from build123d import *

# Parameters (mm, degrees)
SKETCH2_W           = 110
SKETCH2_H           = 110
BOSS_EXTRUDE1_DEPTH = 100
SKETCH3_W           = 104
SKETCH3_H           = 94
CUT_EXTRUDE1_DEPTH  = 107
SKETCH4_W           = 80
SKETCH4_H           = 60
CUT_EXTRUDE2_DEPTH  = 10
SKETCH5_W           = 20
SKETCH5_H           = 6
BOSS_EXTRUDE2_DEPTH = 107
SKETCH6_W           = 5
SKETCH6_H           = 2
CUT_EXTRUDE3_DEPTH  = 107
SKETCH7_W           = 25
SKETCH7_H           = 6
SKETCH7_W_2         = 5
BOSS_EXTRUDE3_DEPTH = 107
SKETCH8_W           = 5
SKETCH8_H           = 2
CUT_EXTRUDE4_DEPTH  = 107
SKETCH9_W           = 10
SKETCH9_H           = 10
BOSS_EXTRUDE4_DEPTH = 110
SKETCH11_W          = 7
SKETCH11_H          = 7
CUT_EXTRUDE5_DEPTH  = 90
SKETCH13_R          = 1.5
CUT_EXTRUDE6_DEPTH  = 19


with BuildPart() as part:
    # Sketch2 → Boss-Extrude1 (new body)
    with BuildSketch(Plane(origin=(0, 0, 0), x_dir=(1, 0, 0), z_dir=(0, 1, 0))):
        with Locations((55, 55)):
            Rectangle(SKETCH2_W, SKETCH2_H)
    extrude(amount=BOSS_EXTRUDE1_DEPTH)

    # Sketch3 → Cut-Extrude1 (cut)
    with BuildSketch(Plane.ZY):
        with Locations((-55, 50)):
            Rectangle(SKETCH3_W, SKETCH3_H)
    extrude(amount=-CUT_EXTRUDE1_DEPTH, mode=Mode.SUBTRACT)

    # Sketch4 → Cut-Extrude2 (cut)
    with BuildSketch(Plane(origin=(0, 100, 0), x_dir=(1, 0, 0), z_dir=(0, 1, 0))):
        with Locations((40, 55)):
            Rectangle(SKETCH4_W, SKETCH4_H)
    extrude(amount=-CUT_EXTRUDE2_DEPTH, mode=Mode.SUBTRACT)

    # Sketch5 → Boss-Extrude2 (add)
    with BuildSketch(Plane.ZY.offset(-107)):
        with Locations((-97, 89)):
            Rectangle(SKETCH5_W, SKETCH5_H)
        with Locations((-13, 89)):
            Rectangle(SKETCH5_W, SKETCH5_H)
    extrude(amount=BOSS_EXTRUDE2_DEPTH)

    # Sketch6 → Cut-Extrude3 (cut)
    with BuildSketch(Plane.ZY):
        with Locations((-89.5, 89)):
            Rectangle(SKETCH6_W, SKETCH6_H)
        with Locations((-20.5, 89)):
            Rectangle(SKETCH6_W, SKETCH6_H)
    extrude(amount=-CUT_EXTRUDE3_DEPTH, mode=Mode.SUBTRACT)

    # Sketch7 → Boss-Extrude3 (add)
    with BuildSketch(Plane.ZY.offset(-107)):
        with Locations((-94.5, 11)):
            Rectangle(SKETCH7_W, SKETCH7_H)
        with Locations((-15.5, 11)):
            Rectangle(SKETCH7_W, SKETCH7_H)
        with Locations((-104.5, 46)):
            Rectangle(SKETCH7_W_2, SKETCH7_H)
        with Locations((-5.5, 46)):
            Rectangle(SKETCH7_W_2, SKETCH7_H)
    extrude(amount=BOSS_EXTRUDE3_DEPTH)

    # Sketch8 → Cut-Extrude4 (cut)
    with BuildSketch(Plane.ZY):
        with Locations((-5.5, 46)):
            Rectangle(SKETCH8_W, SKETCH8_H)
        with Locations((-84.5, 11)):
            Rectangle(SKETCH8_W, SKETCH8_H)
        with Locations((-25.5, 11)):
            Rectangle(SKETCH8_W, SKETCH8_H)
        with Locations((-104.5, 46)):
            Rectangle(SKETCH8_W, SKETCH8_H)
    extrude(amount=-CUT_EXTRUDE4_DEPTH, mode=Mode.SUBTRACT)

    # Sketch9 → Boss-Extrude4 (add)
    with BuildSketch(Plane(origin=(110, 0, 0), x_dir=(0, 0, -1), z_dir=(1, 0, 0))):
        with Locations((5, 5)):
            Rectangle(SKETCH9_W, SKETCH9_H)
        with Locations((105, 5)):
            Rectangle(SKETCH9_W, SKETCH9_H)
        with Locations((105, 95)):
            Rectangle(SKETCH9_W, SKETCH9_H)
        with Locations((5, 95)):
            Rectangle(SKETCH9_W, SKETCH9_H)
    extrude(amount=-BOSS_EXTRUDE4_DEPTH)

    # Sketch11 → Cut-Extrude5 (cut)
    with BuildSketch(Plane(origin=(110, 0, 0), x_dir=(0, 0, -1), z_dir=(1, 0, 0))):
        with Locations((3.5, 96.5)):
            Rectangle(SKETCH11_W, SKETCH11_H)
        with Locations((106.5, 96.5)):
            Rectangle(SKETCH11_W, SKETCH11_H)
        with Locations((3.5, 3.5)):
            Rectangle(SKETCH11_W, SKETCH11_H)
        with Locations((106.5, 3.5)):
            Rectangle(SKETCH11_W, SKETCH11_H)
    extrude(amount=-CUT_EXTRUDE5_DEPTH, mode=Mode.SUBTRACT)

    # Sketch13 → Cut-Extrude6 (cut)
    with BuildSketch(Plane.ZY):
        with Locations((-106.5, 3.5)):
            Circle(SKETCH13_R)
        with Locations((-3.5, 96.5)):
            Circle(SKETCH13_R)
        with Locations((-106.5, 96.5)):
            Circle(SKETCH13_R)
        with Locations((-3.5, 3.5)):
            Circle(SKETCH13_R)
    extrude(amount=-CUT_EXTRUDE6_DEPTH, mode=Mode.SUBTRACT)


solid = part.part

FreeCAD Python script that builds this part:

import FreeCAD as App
import Part
import Sketcher
Q = App.Units.Quantity


def add_polygon(sketch, points):
    """Adds a closed chain of lines whose ends are joined by coincident constraints."""
    first, n = sketch.GeometryCount, len(points)
    for a, b in zip(points, points[1:] + points[:1]):
        sketch.addGeometry(Part.LineSegment(App.Vector(*a, 0), App.Vector(*b, 0)), False)
    for i in range(n):
        sketch.addConstraint(Sketcher.Constraint("Coincident", first + i, 2, first + (i + 1) % n, 1))

doc = App.newDocument("Part")
body = doc.addObject("PartDesign::Body", "Body")

sketch1 = doc.addObject("Sketcher::SketchObject", "Sketch")
body.addObject(sketch1)
sketch1.AttachmentSupport = (doc.XZ_Plane, [""])
sketch1.MapMode = "FlatFace"
add_polygon(sketch1, [(0, -110), (0, 0), (110, 0), (110, -110)])
sketch1.addConstraint([
    Sketcher.Constraint("Vertical", 0),
    Sketcher.Constraint("Horizontal", 1),
    Sketcher.Constraint("Vertical", 2),
    Sketcher.Constraint("Horizontal", 3),
    Sketcher.Constraint("Coincident", 0, 2, -1, 1),
    Sketcher.Constraint("Equal", 3, 0),
    Sketcher.Constraint("DistanceX", 1, 1, 1, 2, Q("110 mm")),
])
pad1 = doc.addObject("PartDesign::Pad", "Pad")
body.addObject(pad1)
pad1.Profile = sketch1
pad1.Length = 100
pad1.Reversed = True

sketch2 = doc.addObject("Sketcher::SketchObject", "Sketch001")
body.addObject(sketch2)
sketch2.AttachmentSupport = (doc.YZ_Plane, [""])
sketch2.MapMode = "FlatFace"
add_polygon(sketch2, [(97, -107), (3, -107), (3, -3), (97, -3)])
sketch2.addConstraint([
    Sketcher.Constraint("Horizontal", 0),
    Sketcher.Constraint("Vertical", 1),
    Sketcher.Constraint("Horizontal", 2),
    Sketcher.Constraint("Vertical", 3),
    Sketcher.Constraint("DistanceX", 0, 2, 0, 1, Q("94 mm")),
    Sketcher.Constraint("DistanceY", 1, 1, 1, 2, Q("104 mm")),
    Sketcher.Constraint("DistanceX", -1, 1, 0, 2, Q("3 mm")),
    Sketcher.Constraint("DistanceY", 0, 2, -1, 1, Q("107 mm")),
])
pocket1 = doc.addObject("PartDesign::Pocket", "Pocket")
body.addObject(pocket1)
pocket1.Profile = sketch2
pocket1.Length = 107
pocket1.Reversed = True

sketch3 = doc.addObject("Sketcher::SketchObject", "Sketch002")
body.addObject(sketch3)
sketch3.AttachmentSupport = (doc.XZ_Plane, [""])
sketch3.MapMode = "FlatFace"
sketch3.AttachmentOffset = App.Placement(App.Vector(0, 0, -100), App.Rotation())
add_polygon(sketch3, [(0, -85), (0, -25), (80, -25), (80, -85)])
sketch3.addConstraint([
    Sketcher.Constraint("Vertical", 0),
    Sketcher.Constraint("Horizontal", 1),
    Sketcher.Constraint("Vertical", 2),
    Sketcher.Constraint("Horizontal", 3),
    Sketcher.Constraint("PointOnObject", 0, 2, -2),
    Sketcher.Constraint("DistanceX", 1, 1, 1, 2, Q("80 mm")),
    Sketcher.Constraint("DistanceY", 0, 1, 0, 2, Q("60 mm")),
    Sketcher.Constraint("DistanceY", 0, 2, -1, 1, Q("25 mm")),
])
pocket2 = doc.addObject("PartDesign::Pocket", "Pocket001")
body.addObject(pocket2)
pocket2.Profile = sketch3
pocket2.Length = 10
pocket2.Reversed = True

sketch4 = doc.addObject("Sketcher::SketchObject", "Sketch003")
body.addObject(sketch4)
sketch4.AttachmentSupport = (doc.YZ_Plane, [""])
sketch4.MapMode = "FlatFace"
sketch4.AttachmentOffset = App.Placement(App.Vector(0, 0, 107), App.Rotation())
add_polygon(sketch4, [(92, -107), (86, -107), (86, -87), (92, -87)])
add_polygon(sketch4, [(92, -23), (86, -23), (86, -3), (92, -3)])
sketch4.addConstraint([
    Sketcher.Constraint("Horizontal", 0),
    Sketcher.Constraint("Vertical", 1),
    Sketcher.Constraint("Horizontal", 2),
    Sketcher.Constraint("Vertical", 3),
    Sketcher.Constraint("Horizontal", 4),
    Sketcher.Constraint("Vertical", 5),
    Sketcher.Constraint("Horizontal", 6),
    Sketcher.Constraint("Vertical", 7),
    Sketcher.Constraint("Vertical", 1, 2, 4, 2),
    Sketcher.Constraint("Vertical", 3, 2, 6, 2),
    Sketcher.Constraint("Equal", 3, 5),
    Sketcher.Constraint("DistanceX", 0, 2, 0, 1, Q("6 mm")),
    Sketcher.Constraint("DistanceY", 1, 1, 1, 2, Q("20 mm")),
    Sketcher.Constraint("DistanceX", -1, 1, 0, 2, Q("86 mm")),
    Sketcher.Constraint("DistanceY", 0, 2, -1, 1, Q("107 mm")),
    Sketcher.Constraint("DistanceY", 4, 2, -1, 1, Q("23 mm")),
])
pad2 = doc.addObject("PartDesign::Pad", "Pad001")
body.addObject(pad2)
pad2.Profile = sketch4
pad2.Length = 107
pad2.Reversed = True

sketch5 = doc.addObject("Sketcher::SketchObject", "Sketch004")
body.addObject(sketch5)
sketch5.AttachmentSupport = (doc.YZ_Plane, [""])
sketch5.MapMode = "FlatFace"
add_polygon(sketch5, [(90, -92), (88, -92), (88, -87), (90, -87)])
add_polygon(sketch5, [(90, -23), (88, -23), (88, -18), (90, -18)])
sketch5.addConstraint([
    Sketcher.Constraint("Horizontal", 0),
    Sketcher.Constraint("Vertical", 1),
    Sketcher.Constraint("Horizontal", 2),
    Sketcher.Constraint("Vertical", 3),
    Sketcher.Constraint("Horizontal", 4),
    Sketcher.Constraint("Vertical", 5),
    Sketcher.Constraint("Horizontal", 6),
    Sketcher.Constraint("Vertical", 7),
    Sketcher.Constraint("Vertical", 1, 2, 4, 2),
    Sketcher.Constraint("Vertical", 3, 2, 6, 2),
    Sketcher.Constraint("Equal", 3, 5),
    Sketcher.Constraint("DistanceX", 0, 2, 0, 1, Q("2 mm")),
    Sketcher.Constraint("DistanceY", 1, 1, 1, 2, Q("5 mm")),
    Sketcher.Constraint("DistanceX", -1, 1, 0, 2, Q("88 mm")),
    Sketcher.Constraint("DistanceY", 0, 2, -1, 1, Q("92 mm")),
    Sketcher.Constraint("DistanceY", 4, 2, -1, 1, Q("23 mm")),
])
pocket3 = doc.addObject("PartDesign::Pocket", "Pocket002")
body.addObject(pocket3)
pocket3.Profile = sketch5
pocket3.Length = 107
pocket3.Reversed = True

sketch6 = doc.addObject("Sketcher::SketchObject", "Sketch005")
body.addObject(sketch6)
sketch6.AttachmentSupport = (doc.YZ_Plane, [""])
sketch6.MapMode = "FlatFace"
sketch6.AttachmentOffset = App.Placement(App.Vector(0, 0, 107), App.Rotation())
add_polygon(sketch6, [(14, -107), (8, -107), (8, -82), (14, -82)])
add_polygon(sketch6, [(14, -28), (8, -28), (8, -3), (14, -3)])
add_polygon(sketch6, [(49, -107), (43, -107), (43, -102), (49, -102)])
add_polygon(sketch6, [(49, -8), (43, -8), (43, -3), (49, -3)])
sketch6.addConstraint([
    Sketcher.Constraint("Horizontal", 0),
    Sketcher.Constraint("Vertical", 1),
    Sketcher.Constraint("Horizontal", 2),
    Sketcher.Constraint("Vertical", 3),
    Sketcher.Constraint("Horizontal", 4),
    Sketcher.Constraint("Vertical", 5),
    Sketcher.Constraint("Horizontal", 6),
    Sketcher.Constraint("Vertical", 7),
    Sketcher.Constraint("Horizontal", 8),
    Sketcher.Constraint("Vertical", 9),
    Sketcher.Constraint("Horizontal", 10),
    Sketcher.Constraint("Vertical", 11),
    Sketcher.Constraint("Horizontal", 12),
    Sketcher.Constraint("Vertical", 13),
    Sketcher.Constraint("Horizontal", 14),
    Sketcher.Constraint("Vertical", 15),
    Sketcher.Constraint("Horizontal", 3, 2, 8, 2),
    Sketcher.Constraint("Horizontal", 6, 2, 13, 2),
    Sketcher.Constraint("Vertical", 1, 2, 4, 2),
    Sketcher.Constraint("Vertical", 3, 2, 6, 2),
    Sketcher.Constraint("Vertical", 9, 2, 12, 2),
    Sketcher.Constraint("Vertical", 11, 2, 14, 2),
    Sketcher.Constraint("Equal", 6, 8),
    Sketcher.Constraint("Equal", 3, 5),
    Sketcher.Constraint("Equal", 11, 13),
    Sketcher.Constraint("DistanceX", 0, 2, 0, 1, Q("6 mm")),
    Sketcher.Constraint("DistanceY", 1, 1, 1, 2, Q("25 mm")),
    Sketcher.Constraint("DistanceY", 9, 1, 9, 2, Q("5 mm")),
    Sketcher.Constraint("DistanceX", -1, 1, 0, 2, Q("8 mm")),
    Sketcher.Constraint("DistanceY", 0, 2, -1, 1, Q("107 mm")),
    Sketcher.Constraint("DistanceY", 4, 2, -1, 1, Q("28 mm")),
    Sketcher.Constraint("DistanceX", -1, 1, 8, 2, Q("43 mm")),
])
pad3 = doc.addObject("PartDesign::Pad", "Pad002")
body.addObject(pad3)
pad3.Profile = sketch6
pad3.Length = 107
pad3.Reversed = True

sketch7 = doc.addObject("Sketcher::SketchObject", "Sketch006")
body.addObject(sketch7)
sketch7.AttachmentSupport = (doc.YZ_Plane, [""])
sketch7.MapMode = "FlatFace"
add_polygon(sketch7, [(47, -8), (45, -8), (45, -3), (47, -3)])
add_polygon(sketch7, [(12, -87), (10, -87), (10, -82), (12, -82)])
add_polygon(sketch7, [(12, -28), (10, -28), (10, -23), (12, -23)])
add_polygon(sketch7, [(47, -107), (45, -107), (45, -102), (47, -102)])
sketch7.addConstraint([
    Sketcher.Constraint("Horizontal", 0),
    Sketcher.Constraint("Vertical", 1),
    Sketcher.Constraint("Horizontal", 2),
    Sketcher.Constraint("Vertical", 3),
    Sketcher.Constraint("Horizontal", 4),
    Sketcher.Constraint("Vertical", 5),
    Sketcher.Constraint("Horizontal", 6),
    Sketcher.Constraint("Vertical", 7),
    Sketcher.Constraint("Horizontal", 8),
    Sketcher.Constraint("Vertical", 9),
    Sketcher.Constraint("Horizontal", 10),
    Sketcher.Constraint("Vertical", 11),
    Sketcher.Constraint("Horizontal", 12),
    Sketcher.Constraint("Vertical", 13),
    Sketcher.Constraint("Horizontal", 14),
    Sketcher.Constraint("Vertical", 15),
    Sketcher.Constraint("Vertical", 5, 2, 8, 2),
    Sketcher.Constraint("Vertical", 7, 2, 10, 2),
    Sketcher.Constraint("Vertical", 1, 2, 12, 2),
    Sketcher.Constraint("Vertical", 3, 2, 14, 2),
    Sketcher.Constraint("Equal", 2, 4),
    Sketcher.Constraint("Equal", 3, 5),
    Sketcher.Constraint("Equal", 7, 9),
    Sketcher.Constraint("Equal", 11, 13),
    Sketcher.Constraint("DistanceX", 0, 2, 0, 1, Q("2 mm")),
    Sketcher.Constraint("DistanceY", 1, 1, 1, 2, Q("5 mm")),
    Sketcher.Constraint("DistanceX", -1, 1, 0, 2, Q("45 mm")),
    Sketcher.Constraint("DistanceY", 0, 2, -1, 1, Q("8 mm")),
    Sketcher.Constraint("DistanceX", -1, 1, 4, 2, Q("10 mm")),
    Sketcher.Constraint("DistanceY", 4, 2, -1, 1, Q("87 mm")),
    Sketcher.Constraint("DistanceY", 8, 2, -1, 1, Q("28 mm")),
    Sketcher.Constraint("DistanceY", 12, 2, -1, 1, Q("107 mm")),
])
pocket4 = doc.addObject("PartDesign::Pocket", "Pocket003")
body.addObject(pocket4)
pocket4.Profile = sketch7
pocket4.Length = 107
pocket4.Reversed = True

sketch8 = doc.addObject("Sketcher::SketchObject", "Sketch007")
body.addObject(sketch8)
sketch8.AttachmentSupport = (doc.YZ_Plane, [""])
sketch8.MapMode = "FlatFace"
sketch8.AttachmentOffset = App.Placement(App.Vector(0, 0, 110), App.Rotation())
add_polygon(sketch8, [(10, 0), (0, 0), (0, -10), (10, -10)])
add_polygon(sketch8, [(10, -100), (0, -100), (0, -110), (10, -110)])
add_polygon(sketch8, [(100, -100), (90, -100), (90, -110), (100, -110)])
add_polygon(sketch8, [(100, 0), (90, 0), (90, -10), (100, -10)])
sketch8.addConstraint([
    Sketcher.Constraint("Horizontal", 0),
    Sketcher.Constraint("Vertical", 1),
    Sketcher.Constraint("Horizontal", 2),
    Sketcher.Constraint("Vertical", 3),
    Sketcher.Constraint("Horizontal", 4),
    Sketcher.Constraint("Vertical", 5),
    Sketcher.Constraint("Horizontal", 6),
    Sketcher.Constraint("Vertical", 7),
    Sketcher.Constraint("Horizontal", 8),
    Sketcher.Constraint("Vertical", 9),
    Sketcher.Constraint("Horizontal", 10),
    Sketcher.Constraint("Vertical", 11),
    Sketcher.Constraint("Horizontal", 12),
    Sketcher.Constraint("Vertical", 13),
    Sketcher.Constraint("Horizontal", 14),
    Sketcher.Constraint("Vertical", 15),
    Sketcher.Constraint("Coincident", 0, 2, -1, 1),
    Sketcher.Constraint("PointOnObject", 4, 2, -2),
    Sketcher.Constraint("PointOnObject", 12, 2, -1),
    Sketcher.Constraint("Horizontal", 7, 2, 8, 2),
    Sketcher.Constraint("Horizontal", 6, 2, 9, 2),
    Sketcher.Constraint("Horizontal", 2, 2, 13, 2),
    Sketcher.Constraint("Vertical", 3, 2, 6, 2),
    Sketcher.Constraint("Vertical", 9, 2, 12, 2),
    Sketcher.Constraint("Vertical", 11, 2, 14, 2),
    Sketcher.Constraint("Equal", 6, 8),
    Sketcher.Constraint("Equal", 14, 1),
    Sketcher.Constraint("Equal", 3, 5),
    Sketcher.Constraint("DistanceX", 0, 2, 0, 1, Q("10 mm")),
    Sketcher.Constraint("DistanceY", 4, 2, -1, 1, Q("100 mm")),
    Sketcher.Constraint("DistanceX", -1, 1, 8, 2, Q("90 mm")),
])
pad4 = doc.addObject("PartDesign::Pad", "Pad003")
body.addObject(pad4)
pad4.Profile = sketch8
pad4.Length = 110
pad4.Reversed = True

sketch9 = doc.addObject("Sketcher::SketchObject", "Sketch008")
body.addObject(sketch9)
sketch9.AttachmentSupport = (doc.YZ_Plane, [""])
sketch9.MapMode = "FlatFace"
sketch9.AttachmentOffset = App.Placement(App.Vector(0, 0, 110), App.Rotation())
add_polygon(sketch9, [(100, 0), (93, 0), (93, -7), (100, -7)])
add_polygon(sketch9, [(100, -103), (93, -103), (93, -110), (100, -110)])
add_polygon(sketch9, [(7, 0), (0, 0), (0, -7), (7, -7)])
add_polygon(sketch9, [(7, -103), (0, -103), (0, -110), (7, -110)])
sketch9.addConstraint([
    Sketcher.Constraint("Horizontal", 0),
    Sketcher.Constraint("Vertical", 1),
    Sketcher.Constraint("Horizontal", 2),
    Sketcher.Constraint("Vertical", 3),
    Sketcher.Constraint("Horizontal", 4),
    Sketcher.Constraint("Vertical", 5),
    Sketcher.Constraint("Horizontal", 6),
    Sketcher.Constraint("Vertical", 7),
    Sketcher.Constraint("Horizontal", 8),
    Sketcher.Constraint("Vertical", 9),
    Sketcher.Constraint("Horizontal", 10),
    Sketcher.Constraint("Vertical", 11),
    Sketcher.Constraint("Horizontal", 12),
    Sketcher.Constraint("Vertical", 13),
    Sketcher.Constraint("Horizontal", 14),
    Sketcher.Constraint("Vertical", 15),
    Sketcher.Constraint("Coincident", 8, 2, -1, 1),
    Sketcher.Constraint("PointOnObject", 0, 2, -1),
    Sketcher.Constraint("PointOnObject", 12, 2, -2),
    Sketcher.Constraint("Horizontal", 2, 2, 9, 2),
    Sketcher.Constraint("Horizontal", 7, 2, 12, 2),
    Sketcher.Constraint("Horizontal", 6, 2, 13, 2),
    Sketcher.Constraint("Vertical", 1, 2, 4, 2),
    Sketcher.Constraint("Vertical", 3, 2, 6, 2),
    Sketcher.Constraint("Vertical", 11, 2, 14, 2),
    Sketcher.Constraint("Equal", 6, 8),
    Sketcher.Constraint("Equal", 14, 1),
    Sketcher.Constraint("Equal", 3, 5),
    Sketcher.Constraint("DistanceX", 0, 2, 0, 1, Q("7 mm")),
    Sketcher.Constraint("DistanceX", -1, 1, 0, 2, Q("93 mm")),
    Sketcher.Constraint("DistanceY", 4, 2, -1, 1, Q("103 mm")),
])
pocket5 = doc.addObject("PartDesign::Pocket", "Pocket004")
body.addObject(pocket5)
pocket5.Profile = sketch9
pocket5.Length = 90

sketch10 = doc.addObject("Sketcher::SketchObject", "Sketch009")
body.addObject(sketch10)
sketch10.AttachmentSupport = (doc.YZ_Plane, [""])
sketch10.MapMode = "FlatFace"
sketch10.addGeometry([
    Part.Circle(App.Vector(3.5, -106.5, 0), App.Vector(0, 0, 1), 1.5),
    Part.Circle(App.Vector(96.5, -3.5, 0), App.Vector(0, 0, 1), 1.5),
    Part.Circle(App.Vector(96.5, -106.5, 0), App.Vector(0, 0, 1), 1.5),
    Part.Circle(App.Vector(3.5, -3.5, 0), App.Vector(0, 0, 1), 1.5),
], False)
sketch10.addConstraint([
    Sketcher.Constraint("Equal", 0, 1),
    Sketcher.Constraint("Equal", 1, 2),
    Sketcher.Constraint("Equal", 2, 3),
    Sketcher.Constraint("Horizontal", 0, 3, 2, 3),
    Sketcher.Constraint("Horizontal", 1, 3, 3, 3),
    Sketcher.Constraint("Vertical", 1, 3, 2, 3),
    Sketcher.Constraint("Vertical", 0, 3, 3, 3),
    Sketcher.Constraint("Diameter", 0, Q("3 mm")),
    Sketcher.Constraint("DistanceX", 0, 3, 1, 3, Q("93 mm")),
    Sketcher.Constraint("DistanceY", 0, 3, 1, 3, Q("103 mm")),
    Sketcher.Constraint("DistanceX", -1, 1, 0, 3, Q("3.5 mm")),
    Sketcher.Constraint("DistanceY", 0, 3, -1, 1, Q("106.5 mm")),
])
pocket6 = doc.addObject("PartDesign::Pocket", "Pocket005")
body.addObject(pocket6)
pocket6.Profile = sketch10
pocket6.Length = 19
pocket6.Reversed = True

doc.recompute()
